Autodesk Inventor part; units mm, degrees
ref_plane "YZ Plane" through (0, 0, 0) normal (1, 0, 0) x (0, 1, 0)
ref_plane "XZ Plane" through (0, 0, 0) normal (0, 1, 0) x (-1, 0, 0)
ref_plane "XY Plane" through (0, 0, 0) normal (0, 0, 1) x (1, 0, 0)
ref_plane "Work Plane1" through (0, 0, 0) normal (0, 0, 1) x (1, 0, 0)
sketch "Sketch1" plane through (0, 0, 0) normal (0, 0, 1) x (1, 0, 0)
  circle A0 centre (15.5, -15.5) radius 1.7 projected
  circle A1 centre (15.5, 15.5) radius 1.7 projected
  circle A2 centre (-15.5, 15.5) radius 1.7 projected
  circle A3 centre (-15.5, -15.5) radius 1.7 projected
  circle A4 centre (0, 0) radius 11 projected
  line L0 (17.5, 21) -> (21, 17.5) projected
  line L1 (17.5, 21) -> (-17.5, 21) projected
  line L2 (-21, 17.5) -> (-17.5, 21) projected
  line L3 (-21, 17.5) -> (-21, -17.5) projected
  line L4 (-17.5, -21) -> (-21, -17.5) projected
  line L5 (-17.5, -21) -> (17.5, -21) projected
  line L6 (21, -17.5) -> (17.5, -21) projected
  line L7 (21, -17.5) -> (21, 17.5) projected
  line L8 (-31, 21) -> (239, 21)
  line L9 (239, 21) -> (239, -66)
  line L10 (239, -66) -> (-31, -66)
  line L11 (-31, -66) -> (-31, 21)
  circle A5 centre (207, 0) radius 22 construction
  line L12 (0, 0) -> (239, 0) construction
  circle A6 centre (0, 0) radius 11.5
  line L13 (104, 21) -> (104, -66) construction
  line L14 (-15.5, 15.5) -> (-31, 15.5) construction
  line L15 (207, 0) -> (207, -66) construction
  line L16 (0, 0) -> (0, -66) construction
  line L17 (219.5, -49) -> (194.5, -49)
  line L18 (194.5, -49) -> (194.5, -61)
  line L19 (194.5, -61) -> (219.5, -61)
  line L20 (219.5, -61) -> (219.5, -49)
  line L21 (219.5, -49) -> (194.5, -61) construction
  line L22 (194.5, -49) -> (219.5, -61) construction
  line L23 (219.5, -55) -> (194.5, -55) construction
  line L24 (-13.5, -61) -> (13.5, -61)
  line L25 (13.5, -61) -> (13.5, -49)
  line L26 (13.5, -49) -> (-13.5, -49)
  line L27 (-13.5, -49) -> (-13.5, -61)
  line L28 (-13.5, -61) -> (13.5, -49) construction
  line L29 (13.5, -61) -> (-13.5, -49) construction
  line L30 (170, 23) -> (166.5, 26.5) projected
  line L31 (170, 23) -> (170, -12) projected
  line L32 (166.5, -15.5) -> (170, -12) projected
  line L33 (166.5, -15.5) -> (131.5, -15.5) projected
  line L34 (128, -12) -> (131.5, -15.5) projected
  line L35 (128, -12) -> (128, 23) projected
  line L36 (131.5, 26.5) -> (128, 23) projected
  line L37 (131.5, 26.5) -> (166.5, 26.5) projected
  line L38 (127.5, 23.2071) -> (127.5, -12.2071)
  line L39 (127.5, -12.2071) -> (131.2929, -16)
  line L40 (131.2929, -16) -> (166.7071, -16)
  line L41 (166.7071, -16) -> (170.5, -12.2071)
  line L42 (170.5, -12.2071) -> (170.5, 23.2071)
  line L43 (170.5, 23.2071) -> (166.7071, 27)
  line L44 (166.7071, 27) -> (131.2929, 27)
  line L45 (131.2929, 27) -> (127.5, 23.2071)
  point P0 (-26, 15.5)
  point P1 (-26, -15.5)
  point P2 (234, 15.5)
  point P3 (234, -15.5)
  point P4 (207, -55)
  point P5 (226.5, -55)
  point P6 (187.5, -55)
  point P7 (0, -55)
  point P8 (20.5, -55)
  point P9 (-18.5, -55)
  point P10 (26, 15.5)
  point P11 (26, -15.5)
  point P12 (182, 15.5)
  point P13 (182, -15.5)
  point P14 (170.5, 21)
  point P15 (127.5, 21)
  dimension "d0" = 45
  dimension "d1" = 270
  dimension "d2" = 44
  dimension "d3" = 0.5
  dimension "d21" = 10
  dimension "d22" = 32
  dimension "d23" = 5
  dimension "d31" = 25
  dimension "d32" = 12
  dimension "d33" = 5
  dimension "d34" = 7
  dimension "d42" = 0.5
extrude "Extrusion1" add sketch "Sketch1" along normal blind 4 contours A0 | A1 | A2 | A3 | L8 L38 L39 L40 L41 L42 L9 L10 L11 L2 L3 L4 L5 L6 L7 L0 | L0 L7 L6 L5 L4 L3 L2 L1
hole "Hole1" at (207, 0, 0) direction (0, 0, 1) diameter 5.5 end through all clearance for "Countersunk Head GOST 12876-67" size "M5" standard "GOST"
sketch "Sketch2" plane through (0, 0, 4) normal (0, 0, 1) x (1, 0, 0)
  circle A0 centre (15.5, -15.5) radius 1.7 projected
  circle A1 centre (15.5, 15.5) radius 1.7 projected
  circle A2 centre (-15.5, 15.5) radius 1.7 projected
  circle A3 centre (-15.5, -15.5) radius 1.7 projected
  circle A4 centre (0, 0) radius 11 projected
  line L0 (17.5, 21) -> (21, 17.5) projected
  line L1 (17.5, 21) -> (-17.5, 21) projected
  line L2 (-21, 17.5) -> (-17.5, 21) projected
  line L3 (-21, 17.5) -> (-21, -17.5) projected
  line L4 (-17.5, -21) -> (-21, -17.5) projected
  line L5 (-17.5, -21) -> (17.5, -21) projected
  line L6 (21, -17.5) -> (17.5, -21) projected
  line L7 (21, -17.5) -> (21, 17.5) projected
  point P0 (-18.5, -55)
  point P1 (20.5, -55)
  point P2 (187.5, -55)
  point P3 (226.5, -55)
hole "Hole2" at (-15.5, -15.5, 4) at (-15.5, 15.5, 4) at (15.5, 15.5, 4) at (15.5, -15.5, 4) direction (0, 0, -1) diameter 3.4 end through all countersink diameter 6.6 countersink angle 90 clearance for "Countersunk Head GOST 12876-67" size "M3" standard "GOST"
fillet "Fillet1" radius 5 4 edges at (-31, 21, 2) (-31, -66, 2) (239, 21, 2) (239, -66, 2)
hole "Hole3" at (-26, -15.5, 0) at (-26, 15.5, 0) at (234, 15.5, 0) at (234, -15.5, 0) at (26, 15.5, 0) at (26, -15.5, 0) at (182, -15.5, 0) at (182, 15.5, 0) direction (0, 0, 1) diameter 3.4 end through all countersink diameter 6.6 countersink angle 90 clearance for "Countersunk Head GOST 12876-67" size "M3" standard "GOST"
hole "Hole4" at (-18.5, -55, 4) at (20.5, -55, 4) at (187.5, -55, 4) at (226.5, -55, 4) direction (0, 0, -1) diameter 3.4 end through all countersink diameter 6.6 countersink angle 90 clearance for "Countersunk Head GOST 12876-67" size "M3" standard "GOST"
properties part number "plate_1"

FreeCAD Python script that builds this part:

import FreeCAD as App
import Part
import Sketcher
from FreeCAD import Vector


def edges_at(feature, points):
    """Names of the edges that pass closest to the given points."""
    edges = feature.Shape.Edges
    near = lambda p: min(range(len(edges)), key=lambda i: edges[i].distToShape(Part.Vertex(*p))[0])
    return sorted({f"Edge{near(p) + 1}" for p in points})

doc = App.newDocument("Part")
body = doc.addObject("PartDesign::Body", "Body")

# Sketch on XY plane
sketch1 = doc.addObject("Sketcher::SketchObject", "Sketch")
body.addObject(sketch1)
sketch1.AttachmentSupport = (doc.XY_Plane, [""])
sketch1.MapMode = "FlatFace"
sketch1.addGeometry([
    Part.LineSegment(Vector(-31, 21, 0), Vector(-31, -66, 0)),  # 0
    Part.LineSegment(Vector(-31, -66, 0), Vector(239, -66, 0)),  # 1
    Part.LineSegment(Vector(239, -66, 0), Vector(239, 21, 0)),  # 2
    Part.LineSegment(Vector(239, 21, 0), Vector(170, 21, 0)),  # 3
    Part.LineSegment(Vector(170, 21, 0), Vector(170, -12, 0)),  # 4
    Part.LineSegment(Vector(170, -12, 0), Vector(167, -16, 0)),  # 5
    Part.LineSegment(Vector(167, -16, 0), Vector(131, -16, 0)),  # 6
    Part.LineSegment(Vector(131, -16, 0), Vector(128, -12, 0)),  # 7
    Part.LineSegment(Vector(128, -12, 0), Vector(128, 21, 0)),  # 8
    Part.LineSegment(Vector(128, 21, 0), Vector(-31, 21, 0)),  # 9
    Part.Circle(Vector(0, 0, 0), Vector(0, 0, 1), 12),  # 10
    Part.LineSegment(Vector(14, -49, 0), Vector(14, -61, 0)),  # 11
    Part.LineSegment(Vector(14, -61, 0), Vector(-14, -61, 0)),  # 12
    Part.LineSegment(Vector(-14, -61, 0), Vector(-14, -49, 0)),  # 13
    Part.LineSegment(Vector(-14, -49, 0), Vector(14, -49, 0)),  # 14
    Part.LineSegment(Vector(194, -49, 0), Vector(220, -49, 0)),  # 15
    Part.LineSegment(Vector(220, -49, 0), Vector(220, -61, 0)),  # 16
    Part.LineSegment(Vector(220, -61, 0), Vector(194, -61, 0)),  # 17
    Part.LineSegment(Vector(194, -61, 0), Vector(194, -49, 0)),  # 18
], False)
sketch1.addConstraint([
    Sketcher.Constraint("Coincident", 0, 2, 1, 1),
    Sketcher.Constraint("Coincident", 1, 2, 2, 1),
    Sketcher.Constraint("Coincident", 2, 2, 3, 1),
    Sketcher.Constraint("Coincident", 3, 2, 4, 1),
    Sketcher.Constraint("Coincident", 4, 2, 5, 1),
    Sketcher.Constraint("Coincident", 5, 2, 6, 1),
    Sketcher.Constraint("Coincident", 6, 2, 7, 1),
    Sketcher.Constraint("Coincident", 7, 2, 8, 1),
    Sketcher.Constraint("Coincident", 8, 2, 9, 1),
    Sketcher.Constraint("Coincident", 9, 2, 0, 1),
    Sketcher.Constraint("Coincident", 11, 2, 12, 1),
    Sketcher.Constraint("Coincident", 12, 2, 13, 1),
    Sketcher.Constraint("Coincident", 13, 2, 14, 1),
    Sketcher.Constraint("Coincident", 14, 2, 11, 1),
    Sketcher.Constraint("Coincident", 15, 2, 16, 1),
    Sketcher.Constraint("Coincident", 16, 2, 17, 1),
    Sketcher.Constraint("Coincident", 17, 2, 18, 1),
    Sketcher.Constraint("Coincident", 18, 2, 15, 1),
    Sketcher.Constraint("Vertical", 0),
    Sketcher.Constraint("Horizontal", 1),
    Sketcher.Constraint("Vertical", 2),
    Sketcher.Constraint("Horizontal", 3),
    Sketcher.Constraint("Vertical", 4),
    Sketcher.Constraint("Horizontal", 6),
    Sketcher.Constraint("Vertical", 8),
    Sketcher.Constraint("Horizontal", 9),
    Sketcher.Constraint("Vertical", 11),
    Sketcher.Constraint("Horizontal", 12),
    Sketcher.Constraint("Vertical", 13),
    Sketcher.Constraint("Horizontal", 14),
    Sketcher.Constraint("Horizontal", 15),
    Sketcher.Constraint("Vertical", 16),
    Sketcher.Constraint("Horizontal", 17),
    Sketcher.Constraint("Vertical", 18),
    Sketcher.Constraint("Coincident", 10, 3, -1, 1),
    Sketcher.Constraint("Perpendicular", 5, 7),
    Sketcher.Constraint("Horizontal", 4, 2, 7, 2),
    Sketcher.Constraint("Horizontal", 3, 2, 8, 2),
    Sketcher.Constraint("Horizontal", 14, 2, 15, 2),
    Sketcher.Constraint("Horizontal", 12, 2, 16, 2),
    Sketcher.Constraint("Equal", 5, 7),
    Sketcher.Constraint("DistanceX", 1, 1, 1, 2, 270.0),
    Sketcher.Constraint("DistanceX", 15, 1, 15, 2, 25.0),
    Sketcher.Constraint("DistanceY", 11, 2, 11, 1, 12.0),
    Sketcher.Constraint("Diameter", 10, 23.0),
    Sketcher.Constraint("DistanceY", 0, 2, 11, 2, 5.0),
    Sketcher.Constraint("DistanceY", 11, 2, 6, 2, 45.0),
    Sketcher.Constraint("DistanceX", 12, 2, 12, 1, 27.0),
    Sketcher.Constraint("DistanceY", 0, 2, 0, 1, 87.0),
    Sketcher.Constraint("DistanceX", 3, 2, 3, 1, 68.5),
    Sketcher.Constraint("DistanceX", 9, 2, 9, 1, 158.5),
    Sketcher.Constraint("DistanceX", 0, 2, -1, 1, 31.0),
    Sketcher.Constraint("DistanceY", 0, 2, -1, 1, 66.0),
    Sketcher.Constraint("DistanceX", 11, 2, 7, 2, 114.0),
    Sketcher.Constraint("DistanceX", 4, 2, 15, 2, 49.0),
    Sketcher.Constraint("DistanceY", 4, 2, 4, 1, 33.207),
])
pad1 = doc.addObject("PartDesign::Pad", "Pad")
body.addObject(pad1)
pad1.Profile = sketch1
pad1.Length = 4

# Sketch on XY plane
sketch2 = doc.addObject("Sketcher::SketchObject", "Sketch001")
body.addObject(sketch2)
sketch2.AttachmentSupport = (doc.XY_Plane, [""])
sketch2.MapMode = "FlatFace"
sketch2.addGeometry(Part.Circle(Vector(207, 0, 0), Vector(0, 0, 1), 2.8), False)
sketch2.addConstraint([
    Sketcher.Constraint("PointOnObject", 0, 3, -1),
    Sketcher.Constraint("Diameter", 0, 5.5),
    Sketcher.Constraint("DistanceX", -1, 1, 0, 3, 207.0),
])
doc.recompute()
hole = doc.addObject("PartDesign::Hole", "Hole")
body.addObject(hole)
hole.Profile = sketch2
hole.ThreadType = "None"
hole.Diameter = 5.5
hole.DepthType = "ThroughAll"
hole.Reversed = True

# Sketch on XY plane
sketch3 = doc.addObject("Sketcher::SketchObject", "Sketch002")
body.addObject(sketch3)
sketch3.AttachmentSupport = (doc.XY_Plane, [""])
sketch3.MapMode = "FlatFace"
sketch3.AttachmentOffset = App.Placement(Vector(0, 0, 4), App.Rotation())
sketch3.addGeometry([
    Part.Circle(Vector(-15.5, -15.5, 0), Vector(0, 0, 1), 1.7),
    Part.Circle(Vector(-15.5, 15.5, 0), Vector(0, 0, 1), 1.7),
    Part.Circle(Vector(15.5, 15.5, 0), Vector(0, 0, 1), 1.7),
    Part.Circle(Vector(15.5, -15.5, 0), Vector(0, 0, 1), 1.7),
], False)
sketch3.addConstraint([
    Sketcher.Constraint("Equal", 0, 1),
    Sketcher.Constraint("Equal", 1, 2),
    Sketcher.Constraint("Equal", 2, 3),
    Sketcher.Constraint("Symmetric", 0, 3, 2, 3, -1, 1),
    Sketcher.Constraint("Symmetric", 1, 3, 3, 3, -1, 1),
    Sketcher.Constraint("Symmetric", 1, 3, 2, 3, -2),
    Sketcher.Constraint("Diameter", 0, 3.4),
    Sketcher.Constraint("DistanceY", 0, 3, 1, 3, 31.0),
    Sketcher.Constraint("DistanceX", 1, 3, 2, 3, 31.0),
])
doc.recompute()
hole2 = doc.addObject("PartDesign::Hole", "Hole001")
body.addObject(hole2)
hole2.Profile = sketch3
hole2.ThreadType = "None"
hole2.Diameter = 3.4
hole2.DepthType = "ThroughAll"
hole2.HoleCutType = "Countersink"
hole2.HoleCutDiameter = 6.6
hole2.HoleCutCountersinkAngle = 90
doc.recompute()

fillet = doc.addObject("PartDesign::Fillet", "Fillet")
body.addObject(fillet)
fillet.Base = (hole2, edges_at(hole2, [
    (-31, 21, 2),
    (-31, -66, 2),
    (239, 21, 2),
    (239, -66, 2),
]))
fillet.Radius = 5

# Sketch on XY plane
sketch4 = doc.addObject("Sketcher::SketchObject", "Sketch003")
body.addObject(sketch4)
sketch4.AttachmentSupport = (doc.XY_Plane, [""])
sketch4.MapMode = "FlatFace"
sketch4.addGeometry([
    Part.Circle(Vector(-26, -15.5, 0), Vector(0, 0, 1), 1.7),  # 0
    Part.Circle(Vector(-26, 15.5, 0), Vector(0, 0, 1), 1.7),  # 1
    Part.Circle(Vector(234, 15.5, 0), Vector(0, 0, 1), 1.7),  # 2
    Part.Circle(Vector(234, -15.5, 0), Vector(0, 0, 1), 1.7),  # 3
    Part.Circle(Vector(26, 15.5, 0), Vector(0, 0, 1), 1.7),  # 4
    Part.Circle(Vector(26, -15.5, 0), Vector(0, 0, 1), 1.7),  # 5
    Part.Circle(Vector(182, -15.5, 0), Vector(0, 0, 1), 1.7),  # 6
    Part.Circle(Vector(182, 15.5, 0), Vector(0, 0, 1), 1.7),  # 7
], False)
sketch4.addConstraint([
    Sketcher.Constraint("Equal", 0, 1),
    Sketcher.Constraint("Equal", 1, 2),
    Sketcher.Constraint("Equal", 2, 3),
    Sketcher.Constraint("Equal", 3, 4),
    Sketcher.Constraint("Equal", 4, 5),
    Sketcher.Constraint("Equal", 5, 6),
    Sketcher.Constraint("Equal", 6, 7),
    Sketcher.Constraint("Symmetric", 0, 3, 4, 3, -1, 1),
    Sketcher.Constraint("Symmetric", 1, 3, 5, 3, -1, 1),
    Sketcher.Constraint("Symmetric", 1, 3, 4, 3, -2),
    Sketcher.Constraint("Symmetric", 2, 3, 3, 3, -1),
    Sketcher.Constraint("Symmetric", 6, 3, 7, 3, -1),
    Sketcher.Constraint("Horizontal", 1, 3, 2, 3),
    Sketcher.Constraint("Horizontal", 5, 3, 6, 3),
    Sketcher.Constraint("Diameter", 0, 3.4),
    Sketcher.Constraint("DistanceX", 0, 3, -1, 1, 26.0),
    Sketcher.Constraint("DistanceX", -1, 1, 2, 3, 234.0),
    Sketcher.Constraint("DistanceX", -1, 1, 6, 3, 182.0),
    Sketcher.Constraint("DistanceY", 0, 3, 1, 3, 31.0),
])
doc.recompute()
hole3 = doc.addObject("PartDesign::Hole", "Hole002")
body.addObject(hole3)
hole3.Profile = sketch4
hole3.ThreadType = "None"
hole3.Diameter = 3.4
hole3.DepthType = "ThroughAll"
hole3.HoleCutType = "Countersink"
hole3.HoleCutDiameter = 6.6
hole3.HoleCutCountersinkAngle = 90
hole3.Reversed = True

# Sketch on XY plane
sketch5 = doc.addObject("Sketcher::SketchObject", "Sketch004")
body.addObject(sketch5)
sketch5.AttachmentSupport = (doc.XY_Plane, [""])
sketch5.MapMode = "FlatFace"
sketch5.AttachmentOffset = App.Placement(Vector(0, 0, 4), App.Rotation())
sketch5.addGeometry([
    Part.Circle(Vector(-18.5, -55, 0), Vector(0, 0, 1), 1.7),
    Part.Circle(Vector(20.5, -55, 0), Vector(0, 0, 1), 1.7),
    Part.Circle(Vector(187.5, -55, 0), Vector(0, 0, 1), 1.7),
    Part.Circle(Vector(226.5, -55, 0), Vector(0, 0, 1), 1.7),
], False)
sketch5.addConstraint([
    Sketcher.Constraint("Equal", 0, 1),
    Sketcher.Constraint("Equal", 1, 2),
    Sketcher.Constraint("Equal", 2, 3),
    Sketcher.Constraint("Horizontal", 0, 3, 1, 3),
    Sketcher.Constraint("Horizontal", 1, 3, 2, 3),
    Sketcher.Constraint("Horizontal", 2, 3, 3, 3),
    Sketcher.Constraint("Diameter", 0, 3.4),
    Sketcher.Constraint("DistanceY", 0, 3, -1, 1, 55.0),
    Sketcher.Constraint("DistanceX", 0, 3, 1, 3, 39.0),
    Sketcher.Constraint("DistanceX", 1, 3, 2, 3, 167.0),
    Sketcher.Constraint("DistanceX", 2, 3, 3, 3, 39.0),
    Sketcher.Constraint("DistanceX", 0, 3, -1, 1, 18.5),
])
doc.recompute()
hole4 = doc.addObject("PartDesign::Hole", "Hole003")
body.addObject(hole4)
hole4.Profile = sketch5
hole4.ThreadType = "None"
hole4.Diameter = 3.4
hole4.DepthType = "ThroughAll"
hole4.HoleCutType = "Countersink"
hole4.HoleCutDiameter = 6.6
hole4.HoleCutCountersinkAngle = 90

doc.recompute()
